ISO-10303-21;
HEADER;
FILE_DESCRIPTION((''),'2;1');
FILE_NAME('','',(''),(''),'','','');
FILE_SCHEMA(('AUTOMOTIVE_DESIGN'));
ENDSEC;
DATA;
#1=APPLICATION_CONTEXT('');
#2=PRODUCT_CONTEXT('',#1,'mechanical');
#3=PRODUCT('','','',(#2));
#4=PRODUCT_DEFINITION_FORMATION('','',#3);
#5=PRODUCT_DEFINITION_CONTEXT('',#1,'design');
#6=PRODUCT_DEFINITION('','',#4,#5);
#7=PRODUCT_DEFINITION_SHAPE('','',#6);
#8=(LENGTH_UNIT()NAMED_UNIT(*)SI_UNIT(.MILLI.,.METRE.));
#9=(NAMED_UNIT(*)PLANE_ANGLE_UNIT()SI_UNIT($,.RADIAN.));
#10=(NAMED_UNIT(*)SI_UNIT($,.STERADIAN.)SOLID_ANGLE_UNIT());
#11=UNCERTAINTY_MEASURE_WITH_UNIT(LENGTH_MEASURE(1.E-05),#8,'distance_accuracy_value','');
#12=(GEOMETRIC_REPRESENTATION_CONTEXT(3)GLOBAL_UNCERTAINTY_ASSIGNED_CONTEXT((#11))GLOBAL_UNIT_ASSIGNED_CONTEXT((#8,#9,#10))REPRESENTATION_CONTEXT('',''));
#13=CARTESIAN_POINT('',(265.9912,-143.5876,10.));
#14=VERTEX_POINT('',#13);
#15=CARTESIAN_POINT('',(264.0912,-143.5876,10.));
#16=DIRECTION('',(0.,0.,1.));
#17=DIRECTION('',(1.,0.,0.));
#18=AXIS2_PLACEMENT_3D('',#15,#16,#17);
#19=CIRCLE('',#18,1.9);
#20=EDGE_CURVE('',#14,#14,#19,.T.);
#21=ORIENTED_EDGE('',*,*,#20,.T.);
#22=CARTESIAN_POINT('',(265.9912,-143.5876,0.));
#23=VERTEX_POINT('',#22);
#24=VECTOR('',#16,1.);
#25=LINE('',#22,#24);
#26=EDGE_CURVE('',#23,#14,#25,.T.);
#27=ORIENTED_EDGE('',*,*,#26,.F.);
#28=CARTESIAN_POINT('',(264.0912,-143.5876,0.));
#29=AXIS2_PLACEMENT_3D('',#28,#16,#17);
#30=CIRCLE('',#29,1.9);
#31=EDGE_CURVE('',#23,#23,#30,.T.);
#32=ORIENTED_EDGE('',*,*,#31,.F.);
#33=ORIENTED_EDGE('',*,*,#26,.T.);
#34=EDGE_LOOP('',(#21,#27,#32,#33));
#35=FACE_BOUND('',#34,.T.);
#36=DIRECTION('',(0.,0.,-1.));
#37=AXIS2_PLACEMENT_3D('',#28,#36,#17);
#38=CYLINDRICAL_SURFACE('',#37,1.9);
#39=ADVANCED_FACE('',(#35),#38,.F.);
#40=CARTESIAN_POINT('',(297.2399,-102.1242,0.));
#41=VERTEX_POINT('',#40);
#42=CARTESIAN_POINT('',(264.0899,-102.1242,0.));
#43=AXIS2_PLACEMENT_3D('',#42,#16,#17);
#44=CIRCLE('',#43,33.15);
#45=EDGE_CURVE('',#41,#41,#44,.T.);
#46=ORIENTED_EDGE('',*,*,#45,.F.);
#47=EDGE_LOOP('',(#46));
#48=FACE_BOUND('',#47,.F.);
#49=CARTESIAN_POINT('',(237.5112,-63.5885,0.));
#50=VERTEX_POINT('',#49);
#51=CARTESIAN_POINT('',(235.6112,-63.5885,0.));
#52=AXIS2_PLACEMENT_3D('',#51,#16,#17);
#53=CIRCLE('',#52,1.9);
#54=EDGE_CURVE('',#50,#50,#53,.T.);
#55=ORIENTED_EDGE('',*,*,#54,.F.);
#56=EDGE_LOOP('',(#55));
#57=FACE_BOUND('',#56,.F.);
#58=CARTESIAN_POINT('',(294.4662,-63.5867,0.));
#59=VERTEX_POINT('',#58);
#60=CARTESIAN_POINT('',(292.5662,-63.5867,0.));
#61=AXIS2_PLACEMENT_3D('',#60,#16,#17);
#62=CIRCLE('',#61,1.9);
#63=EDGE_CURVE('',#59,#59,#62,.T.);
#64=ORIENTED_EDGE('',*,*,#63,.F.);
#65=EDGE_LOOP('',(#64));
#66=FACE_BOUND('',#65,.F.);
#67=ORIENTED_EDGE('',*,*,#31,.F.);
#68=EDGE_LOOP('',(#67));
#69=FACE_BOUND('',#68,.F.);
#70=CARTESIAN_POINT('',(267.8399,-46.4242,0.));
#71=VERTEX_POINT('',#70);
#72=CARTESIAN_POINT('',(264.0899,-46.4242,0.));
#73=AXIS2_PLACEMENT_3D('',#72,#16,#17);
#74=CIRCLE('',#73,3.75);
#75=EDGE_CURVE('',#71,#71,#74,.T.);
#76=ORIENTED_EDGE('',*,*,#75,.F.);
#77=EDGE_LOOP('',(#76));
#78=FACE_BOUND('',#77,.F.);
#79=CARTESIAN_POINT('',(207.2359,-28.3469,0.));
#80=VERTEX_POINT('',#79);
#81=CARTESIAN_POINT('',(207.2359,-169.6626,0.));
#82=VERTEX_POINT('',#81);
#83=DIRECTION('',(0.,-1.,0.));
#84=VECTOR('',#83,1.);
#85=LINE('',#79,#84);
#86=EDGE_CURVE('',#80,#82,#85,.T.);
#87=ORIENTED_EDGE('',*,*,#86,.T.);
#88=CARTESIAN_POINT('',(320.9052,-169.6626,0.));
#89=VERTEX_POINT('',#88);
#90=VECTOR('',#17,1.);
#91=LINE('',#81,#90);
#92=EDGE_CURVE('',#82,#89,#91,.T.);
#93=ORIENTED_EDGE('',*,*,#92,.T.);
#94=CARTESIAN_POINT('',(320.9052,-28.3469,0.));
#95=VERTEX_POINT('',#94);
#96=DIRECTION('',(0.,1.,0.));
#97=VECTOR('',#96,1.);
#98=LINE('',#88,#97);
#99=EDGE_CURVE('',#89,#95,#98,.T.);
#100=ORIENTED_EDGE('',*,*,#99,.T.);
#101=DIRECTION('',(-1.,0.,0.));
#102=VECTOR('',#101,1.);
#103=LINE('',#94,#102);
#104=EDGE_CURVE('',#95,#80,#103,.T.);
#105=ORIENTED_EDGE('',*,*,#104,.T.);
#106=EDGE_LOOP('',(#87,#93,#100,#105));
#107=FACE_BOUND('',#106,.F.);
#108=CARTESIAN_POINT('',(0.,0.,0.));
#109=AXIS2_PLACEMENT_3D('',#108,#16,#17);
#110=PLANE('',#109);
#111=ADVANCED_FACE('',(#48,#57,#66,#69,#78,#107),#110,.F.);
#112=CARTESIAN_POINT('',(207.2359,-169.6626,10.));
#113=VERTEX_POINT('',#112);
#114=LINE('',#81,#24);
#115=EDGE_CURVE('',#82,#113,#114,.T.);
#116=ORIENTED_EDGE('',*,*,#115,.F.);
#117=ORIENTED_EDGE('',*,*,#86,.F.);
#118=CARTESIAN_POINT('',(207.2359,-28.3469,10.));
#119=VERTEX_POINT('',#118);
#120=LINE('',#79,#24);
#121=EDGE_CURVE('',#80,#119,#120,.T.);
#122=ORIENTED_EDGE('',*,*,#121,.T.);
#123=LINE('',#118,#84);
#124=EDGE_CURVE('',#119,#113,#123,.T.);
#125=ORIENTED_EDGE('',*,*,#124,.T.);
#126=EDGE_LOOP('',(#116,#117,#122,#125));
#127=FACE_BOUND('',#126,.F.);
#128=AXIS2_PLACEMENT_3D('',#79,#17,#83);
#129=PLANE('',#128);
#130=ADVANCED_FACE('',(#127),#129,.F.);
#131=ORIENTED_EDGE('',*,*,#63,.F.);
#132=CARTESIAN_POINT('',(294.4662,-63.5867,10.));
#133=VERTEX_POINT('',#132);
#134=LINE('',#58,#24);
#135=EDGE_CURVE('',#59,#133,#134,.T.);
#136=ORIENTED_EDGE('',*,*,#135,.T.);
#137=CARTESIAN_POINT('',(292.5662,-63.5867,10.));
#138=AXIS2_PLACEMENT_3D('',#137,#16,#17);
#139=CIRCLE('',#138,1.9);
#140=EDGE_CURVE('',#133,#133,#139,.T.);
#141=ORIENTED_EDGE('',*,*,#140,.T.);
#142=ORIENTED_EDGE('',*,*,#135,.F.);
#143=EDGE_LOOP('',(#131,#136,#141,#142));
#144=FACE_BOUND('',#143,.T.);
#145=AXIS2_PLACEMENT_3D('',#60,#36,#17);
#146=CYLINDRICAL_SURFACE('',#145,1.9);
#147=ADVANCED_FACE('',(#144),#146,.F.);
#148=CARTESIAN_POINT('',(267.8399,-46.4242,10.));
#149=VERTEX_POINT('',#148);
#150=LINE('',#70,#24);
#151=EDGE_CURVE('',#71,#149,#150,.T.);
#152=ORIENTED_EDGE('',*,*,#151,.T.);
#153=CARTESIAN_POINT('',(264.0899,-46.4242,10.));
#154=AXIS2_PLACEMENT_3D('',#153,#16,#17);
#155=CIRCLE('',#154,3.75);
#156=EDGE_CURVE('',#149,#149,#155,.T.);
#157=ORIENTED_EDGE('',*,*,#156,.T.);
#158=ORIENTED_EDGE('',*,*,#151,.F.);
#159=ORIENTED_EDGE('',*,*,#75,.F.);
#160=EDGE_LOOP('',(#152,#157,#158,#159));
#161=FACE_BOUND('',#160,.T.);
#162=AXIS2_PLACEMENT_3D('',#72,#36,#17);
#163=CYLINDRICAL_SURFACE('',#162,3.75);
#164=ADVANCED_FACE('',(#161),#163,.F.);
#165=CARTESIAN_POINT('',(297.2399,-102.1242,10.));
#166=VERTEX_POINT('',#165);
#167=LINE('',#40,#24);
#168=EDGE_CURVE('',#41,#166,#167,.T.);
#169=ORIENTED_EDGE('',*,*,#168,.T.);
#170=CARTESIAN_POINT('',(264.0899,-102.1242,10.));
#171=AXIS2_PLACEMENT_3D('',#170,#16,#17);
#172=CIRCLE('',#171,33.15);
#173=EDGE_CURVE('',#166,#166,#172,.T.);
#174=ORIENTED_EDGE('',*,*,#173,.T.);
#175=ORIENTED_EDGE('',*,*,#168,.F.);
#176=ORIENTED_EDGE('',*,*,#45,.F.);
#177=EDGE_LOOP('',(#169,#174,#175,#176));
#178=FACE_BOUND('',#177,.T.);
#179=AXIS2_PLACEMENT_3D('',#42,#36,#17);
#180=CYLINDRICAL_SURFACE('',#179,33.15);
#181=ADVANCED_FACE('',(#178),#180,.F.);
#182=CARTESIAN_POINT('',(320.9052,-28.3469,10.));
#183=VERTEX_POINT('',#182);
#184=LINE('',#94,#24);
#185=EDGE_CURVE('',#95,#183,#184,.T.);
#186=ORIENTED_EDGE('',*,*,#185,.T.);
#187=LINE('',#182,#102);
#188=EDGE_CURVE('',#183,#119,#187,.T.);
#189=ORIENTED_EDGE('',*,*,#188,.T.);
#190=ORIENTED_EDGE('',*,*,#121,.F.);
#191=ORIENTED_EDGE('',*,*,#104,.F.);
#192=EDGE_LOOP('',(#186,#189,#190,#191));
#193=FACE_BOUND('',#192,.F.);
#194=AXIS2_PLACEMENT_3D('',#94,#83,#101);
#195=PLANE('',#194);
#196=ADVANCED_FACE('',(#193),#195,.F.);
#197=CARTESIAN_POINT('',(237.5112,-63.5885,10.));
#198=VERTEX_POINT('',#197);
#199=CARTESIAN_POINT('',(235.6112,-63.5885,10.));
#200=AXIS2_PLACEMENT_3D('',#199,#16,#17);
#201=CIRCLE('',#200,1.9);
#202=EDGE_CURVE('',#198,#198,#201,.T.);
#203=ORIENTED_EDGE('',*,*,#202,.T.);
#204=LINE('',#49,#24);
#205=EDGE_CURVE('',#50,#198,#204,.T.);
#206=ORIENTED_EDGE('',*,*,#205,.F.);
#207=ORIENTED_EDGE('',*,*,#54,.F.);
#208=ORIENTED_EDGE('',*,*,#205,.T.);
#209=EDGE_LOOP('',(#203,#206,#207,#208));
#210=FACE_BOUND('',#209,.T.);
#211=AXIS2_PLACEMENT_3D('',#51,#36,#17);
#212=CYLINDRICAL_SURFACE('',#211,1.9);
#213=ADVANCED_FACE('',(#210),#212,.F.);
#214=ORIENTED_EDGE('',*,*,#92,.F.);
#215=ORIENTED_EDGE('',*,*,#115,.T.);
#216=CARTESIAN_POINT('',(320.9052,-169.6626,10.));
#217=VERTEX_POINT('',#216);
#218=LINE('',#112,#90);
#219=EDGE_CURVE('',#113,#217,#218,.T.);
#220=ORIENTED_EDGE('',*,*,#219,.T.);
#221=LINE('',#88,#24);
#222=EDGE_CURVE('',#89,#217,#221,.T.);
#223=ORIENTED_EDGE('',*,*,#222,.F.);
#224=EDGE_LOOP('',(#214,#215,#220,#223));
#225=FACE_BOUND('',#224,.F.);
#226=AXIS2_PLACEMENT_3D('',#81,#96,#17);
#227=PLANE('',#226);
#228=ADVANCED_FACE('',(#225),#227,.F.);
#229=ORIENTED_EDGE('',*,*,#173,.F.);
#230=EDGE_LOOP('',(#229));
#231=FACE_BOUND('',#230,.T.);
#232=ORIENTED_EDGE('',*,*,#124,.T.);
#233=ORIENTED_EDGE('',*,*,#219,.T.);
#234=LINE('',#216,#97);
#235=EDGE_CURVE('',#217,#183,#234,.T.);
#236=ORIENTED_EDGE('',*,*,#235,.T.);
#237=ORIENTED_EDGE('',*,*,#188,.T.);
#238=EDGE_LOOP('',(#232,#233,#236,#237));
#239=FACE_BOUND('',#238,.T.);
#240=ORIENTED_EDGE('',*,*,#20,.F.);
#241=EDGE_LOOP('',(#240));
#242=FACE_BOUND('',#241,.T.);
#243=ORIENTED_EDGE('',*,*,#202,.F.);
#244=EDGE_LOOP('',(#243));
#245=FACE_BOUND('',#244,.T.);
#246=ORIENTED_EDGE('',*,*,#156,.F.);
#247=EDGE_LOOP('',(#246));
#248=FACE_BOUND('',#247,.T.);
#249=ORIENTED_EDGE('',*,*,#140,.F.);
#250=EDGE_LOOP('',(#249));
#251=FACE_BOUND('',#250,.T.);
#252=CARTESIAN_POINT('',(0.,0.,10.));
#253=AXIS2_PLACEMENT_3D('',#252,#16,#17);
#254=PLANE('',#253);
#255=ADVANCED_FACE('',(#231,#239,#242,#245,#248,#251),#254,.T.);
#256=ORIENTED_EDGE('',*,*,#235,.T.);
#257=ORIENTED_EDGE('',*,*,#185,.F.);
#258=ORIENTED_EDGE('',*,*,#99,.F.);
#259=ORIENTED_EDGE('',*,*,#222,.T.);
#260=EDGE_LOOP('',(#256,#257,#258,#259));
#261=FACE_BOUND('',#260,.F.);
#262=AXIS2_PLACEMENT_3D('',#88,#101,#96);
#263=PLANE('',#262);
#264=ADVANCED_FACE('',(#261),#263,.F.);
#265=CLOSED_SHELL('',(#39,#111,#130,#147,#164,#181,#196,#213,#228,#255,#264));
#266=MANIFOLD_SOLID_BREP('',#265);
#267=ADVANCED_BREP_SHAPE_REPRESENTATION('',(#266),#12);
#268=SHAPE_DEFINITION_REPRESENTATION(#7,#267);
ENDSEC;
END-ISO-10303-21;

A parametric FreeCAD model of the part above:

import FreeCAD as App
import Part
import Sketcher
from FreeCAD import Vector
Q = App.Units.Quantity


def add_polygon(sketch, points):
    """Adds a closed chain of lines whose ends are joined by coincident constraints."""
    first, n = sketch.GeometryCount, len(points)
    for a, b in zip(points, points[1:] + points[:1]):
        sketch.addGeometry(Part.LineSegment(App.Vector(*a, 0), App.Vector(*b, 0)), False)
    for i in range(n):
        sketch.addConstraint(Sketcher.Constraint("Coincident", first + i, 2, first + (i + 1) % n, 1))

doc = App.newDocument("Part")
body = doc.addObject("PartDesign::Body", "Body")

# Sketch on XY plane
sketch1 = doc.addObject("Sketcher::SketchObject", "Sketch")
body.addObject(sketch1)
sketch1.AttachmentSupport = (doc.XY_Plane, [""])
sketch1.MapMode = "FlatFace"
add_polygon(sketch1, [(320.9, -169.7), (320.9, -28.3), (207.2, -28.3), (207.2, -169.7)])  # lines 0-3
sketch1.addGeometry(Part.Circle(Vector(235.6, -63.6, 0), Vector(0, 0, 1), 1.9), False)  # 4
sketch1.addGeometry(Part.Circle(Vector(264.1, -143.6, 0), Vector(0, 0, 1), 1.9), False)  # 5
sketch1.addGeometry(Part.Circle(Vector(264.1, -102.1, 0), Vector(0, 0, 1), 33.1), False)  # 6
sketch1.addGeometry(Part.Circle(Vector(264.1, -46.4, 0), Vector(0, 0, 1), 3.8), False)  # 7
sketch1.addGeometry(Part.Circle(Vector(292.6, -63.6, 0), Vector(0, 0, 1), 1.9), False)  # 8
sketch1.addConstraint([
    Sketcher.Constraint("Vertical", 0),
    Sketcher.Constraint("Horizontal", 1),
    Sketcher.Constraint("Vertical", 2),
    Sketcher.Constraint("Horizontal", 3),
    Sketcher.Constraint("Equal", 4, 5),
    Sketcher.Constraint("Equal", 5, 8),
    Sketcher.Constraint("Vertical", 6, 3, 7, 3),
    Sketcher.Constraint("Diameter", 7, Q("7.5 mm")),
    Sketcher.Constraint("Diameter", 4, Q("3.8 mm")),
    Sketcher.Constraint("Diameter", 6, Q("66.3 mm")),
    Sketcher.Constraint("DistanceY", 6, 3, 7, 3, Q("55.7 mm")),
    Sketcher.Constraint("DistanceY", 5, 3, 6, 3, Q("41.4634 mm")),
    Sketcher.Constraint("DistanceX", -1, 1, 6, 3, Q("264.09 mm")),
    Sketcher.Constraint("DistanceX", 4, 3, 5, 3, Q("28.48 mm")),
    Sketcher.Constraint("DistanceX", 1, 2, 1, 1, Q("113.6693 mm")),
    Sketcher.Constraint("DistanceY", 0, 1, 0, 2, Q("141.3157 mm")),
    Sketcher.Constraint("DistanceY", 0, 2, -1, 1, Q("28.347 mm")),
    Sketcher.Constraint("DistanceX", -1, 1, 1, 2, Q("207.236 mm")),
    Sketcher.Constraint("DistanceY", 5, 3, 4, 3, Q("79.999 mm")),
    Sketcher.Constraint("DistanceX", 4, 3, 8, 3, Q("56.955 mm")),
    Sketcher.Constraint("DistanceY", 5, 3, 8, 3, Q("80.001 mm")),
    Sketcher.Constraint("DistanceX", 8, 3, 0, 2, Q("28.339 mm")),
    Sketcher.Constraint("DistanceY", 2, 2, 5, 3, Q("26.075 mm")),
])
pad1 = doc.addObject("PartDesign::Pad", "Pad")
body.addObject(pad1)
pad1.Profile = sketch1
pad1.Length = 10

doc.recompute()
